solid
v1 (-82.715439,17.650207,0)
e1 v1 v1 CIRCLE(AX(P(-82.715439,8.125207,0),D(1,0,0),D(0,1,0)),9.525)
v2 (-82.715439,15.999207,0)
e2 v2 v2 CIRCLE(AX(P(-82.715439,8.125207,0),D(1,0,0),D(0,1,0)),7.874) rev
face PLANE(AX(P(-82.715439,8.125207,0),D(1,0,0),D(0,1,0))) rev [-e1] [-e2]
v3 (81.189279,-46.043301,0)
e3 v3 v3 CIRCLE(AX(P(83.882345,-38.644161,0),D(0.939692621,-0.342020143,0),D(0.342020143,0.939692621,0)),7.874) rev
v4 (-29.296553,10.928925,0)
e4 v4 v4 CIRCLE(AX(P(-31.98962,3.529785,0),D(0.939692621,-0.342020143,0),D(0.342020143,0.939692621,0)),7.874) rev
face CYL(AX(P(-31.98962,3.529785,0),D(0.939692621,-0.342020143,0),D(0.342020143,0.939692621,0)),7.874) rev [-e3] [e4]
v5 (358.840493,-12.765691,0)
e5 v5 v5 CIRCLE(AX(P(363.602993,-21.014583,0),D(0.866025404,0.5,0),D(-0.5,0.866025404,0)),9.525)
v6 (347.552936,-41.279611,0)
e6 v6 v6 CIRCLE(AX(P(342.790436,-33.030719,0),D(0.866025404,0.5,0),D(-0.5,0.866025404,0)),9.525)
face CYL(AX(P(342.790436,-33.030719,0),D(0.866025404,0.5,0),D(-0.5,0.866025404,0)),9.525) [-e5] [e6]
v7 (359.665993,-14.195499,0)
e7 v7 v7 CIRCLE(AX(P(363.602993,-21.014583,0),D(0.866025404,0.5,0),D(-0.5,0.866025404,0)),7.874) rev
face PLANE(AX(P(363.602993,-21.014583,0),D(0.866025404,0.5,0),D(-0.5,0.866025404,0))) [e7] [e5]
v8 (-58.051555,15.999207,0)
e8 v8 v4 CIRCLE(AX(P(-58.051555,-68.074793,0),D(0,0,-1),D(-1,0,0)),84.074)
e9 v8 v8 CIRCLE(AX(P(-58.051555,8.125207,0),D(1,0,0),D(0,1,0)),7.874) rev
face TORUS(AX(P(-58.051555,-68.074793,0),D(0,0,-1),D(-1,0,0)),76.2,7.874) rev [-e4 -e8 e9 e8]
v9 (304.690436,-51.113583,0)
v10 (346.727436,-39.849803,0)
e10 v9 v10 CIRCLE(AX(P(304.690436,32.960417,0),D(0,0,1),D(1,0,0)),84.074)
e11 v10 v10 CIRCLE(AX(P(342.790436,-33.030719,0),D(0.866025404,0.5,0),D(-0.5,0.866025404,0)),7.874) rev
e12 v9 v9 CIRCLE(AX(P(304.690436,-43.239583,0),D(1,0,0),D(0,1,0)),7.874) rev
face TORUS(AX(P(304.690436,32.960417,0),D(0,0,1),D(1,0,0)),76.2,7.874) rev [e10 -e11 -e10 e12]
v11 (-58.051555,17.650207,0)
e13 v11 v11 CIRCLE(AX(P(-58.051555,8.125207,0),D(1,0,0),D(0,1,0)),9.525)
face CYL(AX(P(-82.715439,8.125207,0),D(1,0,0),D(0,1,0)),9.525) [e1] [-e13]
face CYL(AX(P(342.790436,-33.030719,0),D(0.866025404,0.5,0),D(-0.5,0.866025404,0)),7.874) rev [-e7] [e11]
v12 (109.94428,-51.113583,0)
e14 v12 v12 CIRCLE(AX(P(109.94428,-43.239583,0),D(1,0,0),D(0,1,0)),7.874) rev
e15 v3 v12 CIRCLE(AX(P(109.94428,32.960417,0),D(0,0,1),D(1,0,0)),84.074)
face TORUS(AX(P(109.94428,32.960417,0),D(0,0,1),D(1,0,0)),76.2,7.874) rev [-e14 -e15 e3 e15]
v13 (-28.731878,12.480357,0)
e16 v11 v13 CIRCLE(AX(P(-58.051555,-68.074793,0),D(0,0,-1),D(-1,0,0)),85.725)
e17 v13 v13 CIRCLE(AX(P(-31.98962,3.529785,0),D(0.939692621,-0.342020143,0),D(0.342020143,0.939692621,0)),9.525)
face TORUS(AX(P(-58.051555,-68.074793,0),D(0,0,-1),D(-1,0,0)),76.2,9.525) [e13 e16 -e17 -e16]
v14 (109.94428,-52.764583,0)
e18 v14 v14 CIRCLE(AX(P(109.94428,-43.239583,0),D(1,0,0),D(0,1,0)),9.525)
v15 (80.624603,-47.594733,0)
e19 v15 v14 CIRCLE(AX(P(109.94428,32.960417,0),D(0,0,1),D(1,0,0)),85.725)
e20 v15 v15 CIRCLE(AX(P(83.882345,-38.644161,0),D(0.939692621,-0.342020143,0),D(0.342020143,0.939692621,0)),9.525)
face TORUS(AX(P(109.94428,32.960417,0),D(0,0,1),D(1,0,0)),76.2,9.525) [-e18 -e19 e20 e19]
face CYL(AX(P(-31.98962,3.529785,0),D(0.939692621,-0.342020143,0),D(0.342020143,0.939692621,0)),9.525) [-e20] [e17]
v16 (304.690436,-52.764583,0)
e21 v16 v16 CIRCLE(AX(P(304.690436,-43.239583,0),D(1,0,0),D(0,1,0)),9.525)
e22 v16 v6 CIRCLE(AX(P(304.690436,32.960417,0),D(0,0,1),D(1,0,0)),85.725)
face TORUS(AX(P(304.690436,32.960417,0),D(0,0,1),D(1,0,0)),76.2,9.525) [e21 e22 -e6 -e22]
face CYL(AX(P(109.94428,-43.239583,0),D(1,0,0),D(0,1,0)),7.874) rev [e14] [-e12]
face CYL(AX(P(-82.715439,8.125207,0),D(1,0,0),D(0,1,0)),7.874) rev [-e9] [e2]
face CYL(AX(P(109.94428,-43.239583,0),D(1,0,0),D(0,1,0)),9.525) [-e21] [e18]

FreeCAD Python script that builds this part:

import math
import FreeCAD as App
import Part
import Sketcher
from FreeCAD import Vector
Q = App.Units.Quantity

doc = App.newDocument("Part")
body = doc.addObject("PartDesign::Body", "Body")

# Sketch on YZ plane
sketch1 = body.newObject("Sketcher::SketchObject", "Sketch")
sketch1.AttachmentSupport = (doc.getObject("YZ_Plane"), [""])
sketch1.MapMode = "FlatFace"
sketch1.AttachmentOffset = App.Placement(Vector(0, 0, -82.715439), App.Rotation())
sketch1.addGeometry([
    Part.Circle(Vector(8.125207, 0, 0), Vector(0, 0, 1), 9.525),
    Part.Circle(Vector(8.125207, 0, 0), Vector(0, 0, 1), 7.874),
], False)
sketch1.addConstraint([
    Sketcher.Constraint("Coincident", 1, 3, 0, 3),
    Sketcher.Constraint("PointOnObject", 0, 3, -1),
    Sketcher.Constraint("Diameter", 0, Q("0.75 in")),
    Sketcher.Constraint("Diameter", 1, Q("0.62 in")),
    Sketcher.Constraint("DistanceX", -1, 1, 0, 3, Q("8.125207 mm")),
])

# Sketch on XY plane
sketch2 = body.newObject("Sketcher::SketchObject", "Sketch001")
sketch2.AttachmentSupport = (doc.getObject("XY_Plane"), [""])
sketch2.MapMode = "FlatFace"
sketch2.addGeometry([
    Part.LineSegment(Vector(-82.715439, 8.125207, 0), Vector(-58.051555, 8.125207, 0)),  # 0
    Part.ArcOfCircle(Part.Circle(Vector(-58.051555, -68.074793, 0), Vector(0, 0, 1), 76.2), math.radians(70), math.radians(90)),  # 1
    Part.LineSegment(Vector(-31.98962, 3.529785, 0), Vector(83.882345, -38.644161, 0)),  # 2
    Part.ArcOfCircle(Part.Circle(Vector(109.94428, 32.960417, 0), Vector(0, 0, 1), 76.2), math.radians(-110), math.radians(-90)),  # 3
    Part.LineSegment(Vector(109.94428, -43.239583, 0), Vector(304.690436, -43.239583, 0)),  # 4
    Part.ArcOfCircle(Part.Circle(Vector(304.690436, 32.960417, 0), Vector(0, 0, 1), 76.2), math.radians(-90), math.radians(-60)),  # 5
    Part.LineSegment(Vector(342.790436, -33.030719, 0), Vector(363.602993, -21.014583, 0)),  # 6
], False)
sketch2.addConstraint([
    Sketcher.Constraint("Tangent", 0, 2, 1, 2),
    Sketcher.Constraint("Tangent", 1, 1, 2, 1),
    Sketcher.Constraint("Tangent", 2, 2, 3, 1),
    Sketcher.Constraint("Tangent", 3, 2, 4, 1),
    Sketcher.Constraint("Tangent", 4, 2, 5, 1),
    Sketcher.Constraint("Tangent", 5, 2, 6, 1),
    Sketcher.Constraint("Horizontal", 0),
    Sketcher.Constraint("Horizontal", 4),
    Sketcher.Constraint("Equal", 1, 3),
    Sketcher.Constraint("Equal", 3, 5),
    Sketcher.Constraint("Radius", 1, Q("3 in")),
    Sketcher.Constraint("Angle", 2, Q("-20 deg")),
    Sketcher.Constraint("Angle", 6, Q("30 deg")),
    Sketcher.Constraint("DistanceY", 4, 2, 6, 2, Q("0.875 in")),
    Sketcher.Constraint("DistanceX", 1, 1, 3, 3, Q("141.9339 mm")),
    Sketcher.Constraint("DistanceX", 0, 1, 0, 2, Q("24.663884 mm")),
    Sketcher.Constraint("DistanceX", 4, 1, 4, 2, Q("194.746156 mm")),
    Sketcher.Constraint("DistanceX", -1, 1, 3, 3, Q("109.94428 mm")),
    Sketcher.Constraint("DistanceY", 2, 2, -1, 1, Q("38.644161 mm")),
])
doc.recompute()

additivepipe = body.newObject("PartDesign::AdditivePipe", "AdditivePipe")
additivepipe.Profile = sketch1
additivepipe.Spine = (sketch2, ["Edge1", "Edge2", "Edge3", "Edge4", "Edge5", "Edge6", "Edge7"])

doc.recompute()
